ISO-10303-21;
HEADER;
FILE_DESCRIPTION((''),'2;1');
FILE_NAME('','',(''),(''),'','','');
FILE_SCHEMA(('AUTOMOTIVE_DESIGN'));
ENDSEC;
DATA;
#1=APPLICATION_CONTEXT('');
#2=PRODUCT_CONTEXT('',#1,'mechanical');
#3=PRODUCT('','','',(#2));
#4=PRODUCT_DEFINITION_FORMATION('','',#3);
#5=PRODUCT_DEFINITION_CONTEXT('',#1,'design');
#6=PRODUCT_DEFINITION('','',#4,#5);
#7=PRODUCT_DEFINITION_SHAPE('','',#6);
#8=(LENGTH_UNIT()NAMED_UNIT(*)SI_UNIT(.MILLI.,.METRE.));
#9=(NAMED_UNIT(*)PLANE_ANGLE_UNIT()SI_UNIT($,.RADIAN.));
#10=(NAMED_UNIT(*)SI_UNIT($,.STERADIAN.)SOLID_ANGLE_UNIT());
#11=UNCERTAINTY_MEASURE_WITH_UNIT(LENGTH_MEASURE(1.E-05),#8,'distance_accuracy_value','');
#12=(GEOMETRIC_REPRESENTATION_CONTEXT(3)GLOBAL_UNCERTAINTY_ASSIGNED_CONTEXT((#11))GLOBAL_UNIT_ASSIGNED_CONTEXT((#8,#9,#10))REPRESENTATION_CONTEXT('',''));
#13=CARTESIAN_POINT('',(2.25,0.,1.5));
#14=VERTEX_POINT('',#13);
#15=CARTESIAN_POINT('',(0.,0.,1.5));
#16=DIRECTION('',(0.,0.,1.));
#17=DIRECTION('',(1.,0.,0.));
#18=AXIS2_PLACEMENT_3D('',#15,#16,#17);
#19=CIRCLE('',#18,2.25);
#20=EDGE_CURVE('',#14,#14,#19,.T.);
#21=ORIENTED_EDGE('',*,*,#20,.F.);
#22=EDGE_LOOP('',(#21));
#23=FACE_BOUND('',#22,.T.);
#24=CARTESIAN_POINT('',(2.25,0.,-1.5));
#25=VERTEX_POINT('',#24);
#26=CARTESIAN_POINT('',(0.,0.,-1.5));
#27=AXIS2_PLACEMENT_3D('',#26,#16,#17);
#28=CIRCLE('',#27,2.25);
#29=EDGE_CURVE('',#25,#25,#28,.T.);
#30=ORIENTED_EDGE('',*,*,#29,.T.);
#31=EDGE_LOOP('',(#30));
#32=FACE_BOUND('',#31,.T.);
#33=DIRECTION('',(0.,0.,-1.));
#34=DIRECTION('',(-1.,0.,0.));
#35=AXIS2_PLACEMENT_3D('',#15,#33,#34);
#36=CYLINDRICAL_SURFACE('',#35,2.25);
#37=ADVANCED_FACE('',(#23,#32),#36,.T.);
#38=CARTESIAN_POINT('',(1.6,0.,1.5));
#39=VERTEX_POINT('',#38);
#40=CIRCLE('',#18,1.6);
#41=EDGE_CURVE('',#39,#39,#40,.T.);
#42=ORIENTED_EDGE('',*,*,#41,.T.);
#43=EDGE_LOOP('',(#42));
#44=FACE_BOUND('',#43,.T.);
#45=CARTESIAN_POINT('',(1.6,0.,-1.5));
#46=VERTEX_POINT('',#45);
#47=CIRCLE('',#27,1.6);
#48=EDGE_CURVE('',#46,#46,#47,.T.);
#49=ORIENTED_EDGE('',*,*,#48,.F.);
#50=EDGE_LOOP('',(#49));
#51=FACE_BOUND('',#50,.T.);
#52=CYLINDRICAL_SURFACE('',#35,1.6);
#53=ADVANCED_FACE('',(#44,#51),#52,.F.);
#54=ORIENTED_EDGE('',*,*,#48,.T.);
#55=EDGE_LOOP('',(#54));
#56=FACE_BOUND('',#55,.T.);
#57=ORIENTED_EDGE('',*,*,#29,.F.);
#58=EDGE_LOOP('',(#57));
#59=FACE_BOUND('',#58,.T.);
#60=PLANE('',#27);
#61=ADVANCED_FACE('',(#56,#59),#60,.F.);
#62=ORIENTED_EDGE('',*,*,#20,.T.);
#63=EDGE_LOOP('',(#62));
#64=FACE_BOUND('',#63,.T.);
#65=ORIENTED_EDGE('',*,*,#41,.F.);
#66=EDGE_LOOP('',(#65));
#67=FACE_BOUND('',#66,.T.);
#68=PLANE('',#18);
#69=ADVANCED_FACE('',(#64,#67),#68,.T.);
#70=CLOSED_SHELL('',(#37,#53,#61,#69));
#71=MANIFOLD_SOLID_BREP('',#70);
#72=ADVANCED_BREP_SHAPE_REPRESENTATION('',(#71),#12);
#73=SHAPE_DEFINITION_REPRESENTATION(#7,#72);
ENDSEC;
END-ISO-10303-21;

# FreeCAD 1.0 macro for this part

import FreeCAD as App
import Part
import Sketcher

V = App.Vector

doc = App.newDocument("Part")
body = doc.addObject("PartDesign::Body", "Body")

sketch1 = body.newObject("Sketcher::SketchObject", "Sketch")
sketch1.AttachmentSupport = (doc.getObject("XY_Plane"), [""])
sketch1.MapMode = "FlatFace"
sketch1.addGeometry([
    Part.Circle(V(0, 0, 0), V(0, 0, 1), 2.2),
    Part.Circle(V(0, 0, 0), V(0, 0, 1), 1.6),
], False)
sketch1.addConstraint([
    Sketcher.Constraint("Coincident", 0, 3, -1, 1),
    Sketcher.Constraint("Coincident", 1, 3, -1, 1),
    Sketcher.Constraint("Diameter", 0, 4.5),
    Sketcher.Constraint("Diameter", 1, 3.2),
])
pad1 = body.newObject("PartDesign::Pad", "Pad")
pad1.Profile = sketch1
pad1.Type = "TwoLengths"
pad1.Length = 1.5
pad1.Length2 = 1.5

doc.recompute()
